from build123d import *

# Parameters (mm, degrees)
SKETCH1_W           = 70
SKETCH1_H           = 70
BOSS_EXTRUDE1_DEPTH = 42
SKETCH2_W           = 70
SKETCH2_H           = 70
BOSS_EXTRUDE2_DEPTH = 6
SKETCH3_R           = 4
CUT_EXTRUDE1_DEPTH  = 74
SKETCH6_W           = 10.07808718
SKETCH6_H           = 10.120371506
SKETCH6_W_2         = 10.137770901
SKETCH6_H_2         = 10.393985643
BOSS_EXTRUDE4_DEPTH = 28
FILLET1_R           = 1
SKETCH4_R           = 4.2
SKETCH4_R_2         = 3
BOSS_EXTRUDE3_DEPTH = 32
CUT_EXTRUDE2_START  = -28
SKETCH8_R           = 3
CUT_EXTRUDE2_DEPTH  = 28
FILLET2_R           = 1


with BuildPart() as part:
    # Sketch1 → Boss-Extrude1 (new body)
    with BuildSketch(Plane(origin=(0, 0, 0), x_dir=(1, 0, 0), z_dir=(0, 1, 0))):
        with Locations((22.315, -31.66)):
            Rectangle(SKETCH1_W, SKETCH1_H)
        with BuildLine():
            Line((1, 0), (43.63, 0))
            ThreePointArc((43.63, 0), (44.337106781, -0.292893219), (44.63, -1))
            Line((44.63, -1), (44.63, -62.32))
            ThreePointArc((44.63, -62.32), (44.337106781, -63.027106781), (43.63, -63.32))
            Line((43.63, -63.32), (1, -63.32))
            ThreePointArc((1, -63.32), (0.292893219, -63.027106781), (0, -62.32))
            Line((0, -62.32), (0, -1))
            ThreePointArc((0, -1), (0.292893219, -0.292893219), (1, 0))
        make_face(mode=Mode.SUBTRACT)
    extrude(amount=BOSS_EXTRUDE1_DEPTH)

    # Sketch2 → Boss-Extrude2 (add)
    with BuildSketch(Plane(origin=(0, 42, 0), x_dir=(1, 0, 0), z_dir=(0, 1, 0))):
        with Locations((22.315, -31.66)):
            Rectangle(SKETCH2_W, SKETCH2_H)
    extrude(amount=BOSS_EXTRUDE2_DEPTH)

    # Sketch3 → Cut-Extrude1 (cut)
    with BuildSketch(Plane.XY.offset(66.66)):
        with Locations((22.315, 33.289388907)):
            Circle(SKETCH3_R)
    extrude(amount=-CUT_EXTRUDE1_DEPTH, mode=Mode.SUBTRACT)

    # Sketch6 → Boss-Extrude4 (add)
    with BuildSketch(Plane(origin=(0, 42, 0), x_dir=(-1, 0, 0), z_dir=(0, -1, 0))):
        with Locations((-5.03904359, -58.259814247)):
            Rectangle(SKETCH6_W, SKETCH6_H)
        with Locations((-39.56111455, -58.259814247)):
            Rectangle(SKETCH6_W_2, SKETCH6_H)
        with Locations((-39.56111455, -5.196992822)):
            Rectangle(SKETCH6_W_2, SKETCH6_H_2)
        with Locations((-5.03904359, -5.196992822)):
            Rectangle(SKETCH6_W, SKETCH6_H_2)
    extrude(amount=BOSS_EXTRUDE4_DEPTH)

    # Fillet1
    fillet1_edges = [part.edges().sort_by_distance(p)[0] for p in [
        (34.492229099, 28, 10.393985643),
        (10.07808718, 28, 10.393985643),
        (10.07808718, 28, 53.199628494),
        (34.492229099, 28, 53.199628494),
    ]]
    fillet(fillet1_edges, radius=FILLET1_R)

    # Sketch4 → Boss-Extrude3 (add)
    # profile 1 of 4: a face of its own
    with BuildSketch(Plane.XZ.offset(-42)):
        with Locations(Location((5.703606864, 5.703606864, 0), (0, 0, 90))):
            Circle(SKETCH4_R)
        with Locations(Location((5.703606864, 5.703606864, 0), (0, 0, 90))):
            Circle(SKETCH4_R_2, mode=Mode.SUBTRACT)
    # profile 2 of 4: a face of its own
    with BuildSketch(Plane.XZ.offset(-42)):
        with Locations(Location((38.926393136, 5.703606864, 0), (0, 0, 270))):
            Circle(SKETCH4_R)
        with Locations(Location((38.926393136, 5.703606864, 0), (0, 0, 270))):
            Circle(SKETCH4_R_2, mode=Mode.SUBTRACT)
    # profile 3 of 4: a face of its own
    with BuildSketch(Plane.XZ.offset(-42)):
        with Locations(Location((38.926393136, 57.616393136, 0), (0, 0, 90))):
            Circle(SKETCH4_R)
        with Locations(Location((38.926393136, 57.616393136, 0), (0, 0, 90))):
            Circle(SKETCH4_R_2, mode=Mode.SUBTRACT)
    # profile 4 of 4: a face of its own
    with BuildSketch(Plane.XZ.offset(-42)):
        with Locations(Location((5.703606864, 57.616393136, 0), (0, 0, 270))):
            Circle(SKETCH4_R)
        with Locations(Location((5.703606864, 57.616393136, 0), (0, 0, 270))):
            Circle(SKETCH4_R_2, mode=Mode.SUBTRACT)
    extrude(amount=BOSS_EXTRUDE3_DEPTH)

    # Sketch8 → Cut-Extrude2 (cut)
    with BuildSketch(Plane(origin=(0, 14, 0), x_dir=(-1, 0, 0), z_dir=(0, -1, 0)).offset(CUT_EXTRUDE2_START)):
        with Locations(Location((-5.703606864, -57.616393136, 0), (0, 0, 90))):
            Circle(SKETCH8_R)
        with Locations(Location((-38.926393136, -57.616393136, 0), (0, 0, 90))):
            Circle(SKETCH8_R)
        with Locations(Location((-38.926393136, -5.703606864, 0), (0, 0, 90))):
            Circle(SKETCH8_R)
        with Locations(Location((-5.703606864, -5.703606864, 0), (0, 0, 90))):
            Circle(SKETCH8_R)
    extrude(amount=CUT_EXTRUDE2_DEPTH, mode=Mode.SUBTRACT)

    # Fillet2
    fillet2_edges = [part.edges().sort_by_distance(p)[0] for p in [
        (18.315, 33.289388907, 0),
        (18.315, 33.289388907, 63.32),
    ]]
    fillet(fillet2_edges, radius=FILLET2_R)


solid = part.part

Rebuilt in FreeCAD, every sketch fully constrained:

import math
import FreeCAD as App
import Part
import Sketcher

V = App.Vector
Q = App.Units.Quantity


def edges_at(feature, points):
    """Names of the edges that pass closest to the given points."""
    edges = feature.Shape.Edges
    near = lambda p: min(range(len(edges)), key=lambda i: edges[i].distToShape(Part.Vertex(*p))[0])
    return sorted({f"Edge{near(p) + 1}" for p in points})


def add_polygon(sketch, points):
    """Adds a closed chain of lines whose ends are joined by coincident constraints."""
    first, n = sketch.GeometryCount, len(points)
    for a, b in zip(points, points[1:] + points[:1]):
        sketch.addGeometry(Part.LineSegment(App.Vector(*a, 0), App.Vector(*b, 0)), False)
    for i in range(n):
        sketch.addConstraint(Sketcher.Constraint("Coincident", first + i, 2, first + (i + 1) % n, 1))

doc = App.newDocument("Part")
body = doc.addObject("PartDesign::Body", "Body")

sketch1 = doc.addObject("Sketcher::SketchObject", "Sketch")
body.addObject(sketch1)
sketch1.AttachmentSupport = (doc.XZ_Plane, [""])
sketch1.MapMode = "FlatFace"
add_polygon(sketch1, [(-12.7, -3.3), (-12.7, 66.7), (57.3, 66.7), (57.3, -3.3)])
sketch1.addGeometry(Part.ArcOfCircle(Part.Circle(V(1, 1, 0), V(0, 0, 1), 1), math.radians(-180), math.radians(-90)), False)
sketch1.addGeometry(Part.LineSegment(V(1, 0, 0), V(43.6, 0, 0)), False)
sketch1.addGeometry(Part.ArcOfCircle(Part.Circle(V(43.6, 1, 0), V(0, 0, 1), 1), math.radians(-90), math.radians(0)), False)
sketch1.addGeometry(Part.LineSegment(V(44.6, 1, 0), V(44.6, 62.3, 0)), False)
sketch1.addGeometry(Part.ArcOfCircle(Part.Circle(V(43.6, 62.3, 0), V(0, 0, 1), 1), math.radians(0), math.radians(90)), False)
sketch1.addGeometry(Part.LineSegment(V(43.6, 63.3, 0), V(1, 63.3, 0)), False)
sketch1.addGeometry(Part.ArcOfCircle(Part.Circle(V(1, 62.3, 0), V(0, 0, 1), 1), math.radians(90), math.radians(180)), False)
sketch1.addGeometry(Part.LineSegment(V(0, 62.3, 0), V(0, 1, 0)), False)
sketch1.addConstraint(Sketcher.Constraint("Tangent", 4, 2, 5, 1))
sketch1.addConstraint(Sketcher.Constraint("Tangent", 5, 2, 6, 1))
sketch1.addConstraint(Sketcher.Constraint("Tangent", 6, 2, 7, 1))
sketch1.addConstraint(Sketcher.Constraint("Tangent", 7, 2, 8, 1))
sketch1.addConstraint(Sketcher.Constraint("Tangent", 8, 2, 9, 1))
sketch1.addConstraint(Sketcher.Constraint("Tangent", 9, 2, 10, 1))
sketch1.addConstraint(Sketcher.Constraint("Tangent", 10, 2, 11, 1))
sketch1.addConstraint(Sketcher.Constraint("Tangent", 11, 2, 4, 1))
sketch1.addConstraint(Sketcher.Constraint("Vertical", 0))
sketch1.addConstraint(Sketcher.Constraint("Horizontal", 1))
sketch1.addConstraint(Sketcher.Constraint("Vertical", 2))
sketch1.addConstraint(Sketcher.Constraint("Horizontal", 3))
sketch1.addConstraint(Sketcher.Constraint("Horizontal", 5))
sketch1.addConstraint(Sketcher.Constraint("Vertical", 7))
sketch1.addConstraint(Sketcher.Constraint("Horizontal", 9))
sketch1.addConstraint(Sketcher.Constraint("Vertical", 11))
sketch1.addConstraint(Sketcher.Constraint("Equal", 4, 6))
sketch1.addConstraint(Sketcher.Constraint("Equal", 6, 8))
sketch1.addConstraint(Sketcher.Constraint("Equal", 8, 10))
sketch1.addConstraint(Sketcher.Constraint("PointOnObject", 4, 2, -1))
sketch1.addConstraint(Sketcher.Constraint("PointOnObject", 10, 2, -2))
sketch1.addConstraint(Sketcher.Constraint("Equal", 3, 0))
sketch1.addConstraint(Sketcher.Constraint("Radius", 4, Q("1 mm")))
sketch1.addConstraint(Sketcher.Constraint("DistanceX", 1, 1, 1, 2, Q("70 mm")))
sketch1.addConstraint(Sketcher.Constraint("DistanceX", 5, 1, 5, 2, Q("42.63 mm")))
sketch1.addConstraint(Sketcher.Constraint("DistanceY", 7, 1, 7, 2, Q("61.32 mm")))
sketch1.addConstraint(Sketcher.Constraint("DistanceY", -1, 1, 0, 2, Q("66.66 mm")))
sketch1.addConstraint(Sketcher.Constraint("DistanceX", 0, 2, -1, 1, Q("12.685 mm")))
pad1 = doc.addObject("PartDesign::Pad", "Pad")
body.addObject(pad1)
pad1.Profile = sketch1
pad1.Length = 42
pad1.Reversed = True

sketch2 = doc.addObject("Sketcher::SketchObject", "Sketch001")
body.addObject(sketch2)
sketch2.AttachmentSupport = (doc.XZ_Plane, [""])
sketch2.MapMode = "FlatFace"
sketch2.AttachmentOffset = App.Placement(V(0, 0, -42), App.Rotation())
add_polygon(sketch2, [(-13, -3), (-13, 67), (57, 67), (57, -3)])
sketch2.addConstraint(Sketcher.Constraint("Vertical", 0))
sketch2.addConstraint(Sketcher.Constraint("Horizontal", 1))
sketch2.addConstraint(Sketcher.Constraint("Vertical", 2))
sketch2.addConstraint(Sketcher.Constraint("Horizontal", 3))
sketch2.addConstraint(Sketcher.Constraint("Equal", 3, 0))
sketch2.addConstraint(Sketcher.Constraint("DistanceX", 1, 1, 1, 2, Q("70 mm")))
sketch2.addConstraint(Sketcher.Constraint("DistanceY", -1, 1, 0, 2, Q("66.66 mm")))
sketch2.addConstraint(Sketcher.Constraint("DistanceX", 0, 2, -1, 1, Q("12.685 mm")))
pad2 = doc.addObject("PartDesign::Pad", "Pad001")
body.addObject(pad2)
pad2.Profile = sketch2
pad2.Length = 6
pad2.Reversed = True

sketch3 = doc.addObject("Sketcher::SketchObject", "Sketch002")
body.addObject(sketch3)
sketch3.AttachmentSupport = (doc.XY_Plane, [""])
sketch3.MapMode = "FlatFace"
sketch3.AttachmentOffset = App.Placement(V(0, 0, 66.66), App.Rotation())
sketch3.addGeometry(Part.Circle(V(22.3, 33.3, 0), V(0, 0, 1), 4), False)
sketch3.addConstraint(Sketcher.Constraint("Diameter", 0, Q("8 mm")))
sketch3.addConstraint(Sketcher.Constraint("DistanceX", -1, 1, 0, 3, Q("22.315 mm")))
sketch3.addConstraint(Sketcher.Constraint("DistanceY", -1, 1, 0, 3, Q("33.289389 mm")))
pocket1 = doc.addObject("PartDesign::Pocket", "Pocket")
body.addObject(pocket1)
pocket1.Profile = sketch3
pocket1.Length = 74

sketch4 = doc.addObject("Sketcher::SketchObject", "Sketch003")
body.addObject(sketch4)
sketch4.AttachmentSupport = (doc.XZ_Plane, [""])
sketch4.MapMode = "FlatFace"
sketch4.AttachmentOffset = App.Placement(V(0, 0, -42), App.Rotation())
add_polygon(sketch4, [(10, 53), (10, 63), (0, 63), (0, 53)])
add_polygon(sketch4, [(45, 53), (45, 63), (34, 63), (34, 53)])
add_polygon(sketch4, [(45, 0), (45, 10), (34, 10), (34, 0)])
add_polygon(sketch4, [(10, 0), (10, 10), (0, 10), (0, 0)])
sketch4.addConstraint(Sketcher.Constraint("Vertical", 0))
sketch4.addConstraint(Sketcher.Constraint("Horizontal", 1))
sketch4.addConstraint(Sketcher.Constraint("Vertical", 2))
sketch4.addConstraint(Sketcher.Constraint("Horizontal", 3))
sketch4.addConstraint(Sketcher.Constraint("Vertical", 4))
sketch4.addConstraint(Sketcher.Constraint("Horizontal", 5))
sketch4.addConstraint(Sketcher.Constraint("Vertical", 6))
sketch4.addConstraint(Sketcher.Constraint("Horizontal", 7))
sketch4.addConstraint(Sketcher.Constraint("Vertical", 8))
sketch4.addConstraint(Sketcher.Constraint("Horizontal", 9))
sketch4.addConstraint(Sketcher.Constraint("Vertical", 10))
sketch4.addConstraint(Sketcher.Constraint("Horizontal", 11))
sketch4.addConstraint(Sketcher.Constraint("Vertical", 12))
sketch4.addConstraint(Sketcher.Constraint("Horizontal", 13))
sketch4.addConstraint(Sketcher.Constraint("Vertical", 14))
sketch4.addConstraint(Sketcher.Constraint("Horizontal", 15))
sketch4.addConstraint(Sketcher.Constraint("Coincident", 14, 2, -1, 1))
sketch4.addConstraint(Sketcher.Constraint("PointOnObject", 1, 2, -2))
sketch4.addConstraint(Sketcher.Constraint("PointOnObject", 10, 2, -1))
sketch4.addConstraint(Sketcher.Constraint("Horizontal", 1, 2, 4, 2))
sketch4.addConstraint(Sketcher.Constraint("Horizontal", 3, 2, 6, 2))
sketch4.addConstraint(Sketcher.Constraint("Horizontal", 9, 2, 12, 2))
sketch4.addConstraint(Sketcher.Constraint("Vertical", 7, 2, 8, 2))
sketch4.addConstraint(Sketcher.Constraint("Vertical", 6, 2, 9, 2))
sketch4.addConstraint(Sketcher.Constraint("Vertical", 3, 2, 12, 2))
sketch4.addConstraint(Sketcher.Constraint("DistanceY", -1, 1, 0, 2, Q("63.32 mm")))
sketch4.addConstraint(Sketcher.Constraint("DistanceX", -1, 1, 4, 2, Q("44.63 mm")))
sketch4.addConstraint(Sketcher.Constraint("DistanceX", 5, 2, 5, 1, Q("10.137771 mm")))
sketch4.addConstraint(Sketcher.Constraint("DistanceY", 0, 1, 0, 2, Q("10.120372 mm")))
sketch4.addConstraint(Sketcher.Constraint("DistanceX", 1, 2, 1, 1, Q("10.078087 mm")))
sketch4.addConstraint(Sketcher.Constraint("DistanceY", 8, 1, 8, 2, Q("10.393986 mm")))
pad3 = doc.addObject("PartDesign::Pad", "Pad002")
body.addObject(pad3)
pad3.Profile = sketch4
pad3.Length = 28
doc.recompute()

fillet = doc.addObject("PartDesign::Fillet", "Fillet")
body.addObject(fillet)
fillet.Base = (pad3, edges_at(pad3, [
    (34.492, 28, 10.394),
    (10.078, 28, 10.394),
    (10.078, 28, 53.2),
    (34.492, 28, 53.2),
]))
fillet.Radius = 1

sketch5 = doc.addObject("Sketcher::SketchObject", "Sketch004")
body.addObject(sketch5)
sketch5.AttachmentSupport = (doc.XZ_Plane, [""])
sketch5.MapMode = "FlatFace"
sketch5.AttachmentOffset = App.Placement(V(0, 0, -42), App.Rotation())
sketch5.addGeometry(Part.Circle(V(5.7, 5.7, 0), V(0, 0, 1), 4.2), False)
sketch5.addGeometry(Part.Circle(V(5.7, 5.7, 0), V(0, 0, 1), 3), False)
sketch5.addGeometry(Part.Circle(V(38.9, 5.7, 0), V(0, 0, 1), 4.2), False)
sketch5.addGeometry(Part.Circle(V(38.9, 5.7, 0), V(0, 0, 1), 3), False)
sketch5.addGeometry(Part.Circle(V(38.9, 57.6, 0), V(0, 0, 1), 4.2), False)
sketch5.addGeometry(Part.Circle(V(38.9, 57.6, 0), V(0, 0, 1), 3), False)
sketch5.addGeometry(Part.Circle(V(5.7, 57.6, 0), V(0, 0, 1), 4.2), False)
sketch5.addGeometry(Part.Circle(V(5.7, 57.6, 0), V(0, 0, 1), 3), False)
sketch5.addConstraint(Sketcher.Constraint("Coincident", 1, 3, 0, 3))
sketch5.addConstraint(Sketcher.Constraint("Coincident", 3, 3, 2, 3))
sketch5.addConstraint(Sketcher.Constraint("Coincident", 5, 3, 4, 3))
sketch5.addConstraint(Sketcher.Constraint("Coincident", 7, 3, 6, 3))
sketch5.addConstraint(Sketcher.Constraint("Equal", 0, 2))
sketch5.addConstraint(Sketcher.Constraint("Equal", 1, 3))
sketch5.addConstraint(Sketcher.Constraint("Equal", 2, 4))
sketch5.addConstraint(Sketcher.Constraint("Equal", 3, 5))
sketch5.addConstraint(Sketcher.Constraint("Equal", 4, 6))
sketch5.addConstraint(Sketcher.Constraint("Equal", 5, 7))
sketch5.addConstraint(Sketcher.Constraint("Horizontal", 1, 3, 2, 3))
sketch5.addConstraint(Sketcher.Constraint("Horizontal", 5, 3, 6, 3))
sketch5.addConstraint(Sketcher.Constraint("Vertical", 3, 3, 4, 3))
sketch5.addConstraint(Sketcher.Constraint("Vertical", 1, 3, 6, 3))
sketch5.addConstraint(Sketcher.Constraint("Diameter", 1, Q("6 mm")))
sketch5.addConstraint(Sketcher.Constraint("Diameter", 0, Q("8.4 mm")))
sketch5.addConstraint(Sketcher.Constraint("DistanceX", -1, 1, 0, 3, Q("5.703607 mm")))
sketch5.addConstraint(Sketcher.Constraint("DistanceY", -1, 1, 0, 3, Q("5.703607 mm")))
sketch5.addConstraint(Sketcher.Constraint("DistanceX", -1, 1, 2, 3, Q("38.926393 mm")))
sketch5.addConstraint(Sketcher.Constraint("DistanceY", -1, 1, 4, 3, Q("57.616393 mm")))
pad4 = doc.addObject("PartDesign::Pad", "Pad003")
body.addObject(pad4)
pad4.Profile = sketch5
pad4.Length = 32

sketch6 = doc.addObject("Sketcher::SketchObject", "Sketch005")
body.addObject(sketch6)
sketch6.AttachmentSupport = (doc.XZ_Plane, [""])
sketch6.MapMode = "FlatFace"
sketch6.AttachmentOffset = App.Placement(V(0, 0, -42), App.Rotation())
sketch6.addGeometry(Part.Circle(V(5.7, 57.6, 0), V(0, 0, 1), 3), False)
sketch6.addGeometry(Part.Circle(V(38.9, 57.6, 0), V(0, 0, 1), 3), False)
sketch6.addGeometry(Part.Circle(V(38.9, 5.7, 0), V(0, 0, 1), 3), False)
sketch6.addGeometry(Part.Circle(V(5.7, 5.7, 0), V(0, 0, 1), 3), False)
sketch6.addConstraint(Sketcher.Constraint("Equal", 0, 1))
sketch6.addConstraint(Sketcher.Constraint("Equal", 1, 2))
sketch6.addConstraint(Sketcher.Constraint("Equal", 2, 3))
sketch6.addConstraint(Sketcher.Constraint("Horizontal", 0, 3, 1, 3))
sketch6.addConstraint(Sketcher.Constraint("Horizontal", 2, 3, 3, 3))
sketch6.addConstraint(Sketcher.Constraint("Vertical", 1, 3, 2, 3))
sketch6.addConstraint(Sketcher.Constraint("Vertical", 0, 3, 3, 3))
sketch6.addConstraint(Sketcher.Constraint("Diameter", 0, Q("6 mm")))
sketch6.addConstraint(Sketcher.Constraint("DistanceX", -1, 1, 0, 3, Q("5.703607 mm")))
sketch6.addConstraint(Sketcher.Constraint("DistanceY", -1, 1, 0, 3, Q("57.616393 mm")))
sketch6.addConstraint(Sketcher.Constraint("DistanceX", -1, 1, 1, 3, Q("38.926393 mm")))
sketch6.addConstraint(Sketcher.Constraint("DistanceY", -1, 1, 2, 3, Q("5.703607 mm")))
pocket2 = doc.addObject("PartDesign::Pocket", "Pocket001")
body.addObject(pocket2)
pocket2.Profile = sketch6
pocket2.Length = 28
pocket2.Reversed = True
doc.recompute()

fillet2 = doc.addObject("PartDesign::Fillet", "Fillet001")
body.addObject(fillet2)
fillet2.Base = (pocket2, edges_at(pocket2, [(18.315, 33.289, 0), (18.315, 33.289, 63.32)]))
fillet2.Radius = 1

doc.recompute()
